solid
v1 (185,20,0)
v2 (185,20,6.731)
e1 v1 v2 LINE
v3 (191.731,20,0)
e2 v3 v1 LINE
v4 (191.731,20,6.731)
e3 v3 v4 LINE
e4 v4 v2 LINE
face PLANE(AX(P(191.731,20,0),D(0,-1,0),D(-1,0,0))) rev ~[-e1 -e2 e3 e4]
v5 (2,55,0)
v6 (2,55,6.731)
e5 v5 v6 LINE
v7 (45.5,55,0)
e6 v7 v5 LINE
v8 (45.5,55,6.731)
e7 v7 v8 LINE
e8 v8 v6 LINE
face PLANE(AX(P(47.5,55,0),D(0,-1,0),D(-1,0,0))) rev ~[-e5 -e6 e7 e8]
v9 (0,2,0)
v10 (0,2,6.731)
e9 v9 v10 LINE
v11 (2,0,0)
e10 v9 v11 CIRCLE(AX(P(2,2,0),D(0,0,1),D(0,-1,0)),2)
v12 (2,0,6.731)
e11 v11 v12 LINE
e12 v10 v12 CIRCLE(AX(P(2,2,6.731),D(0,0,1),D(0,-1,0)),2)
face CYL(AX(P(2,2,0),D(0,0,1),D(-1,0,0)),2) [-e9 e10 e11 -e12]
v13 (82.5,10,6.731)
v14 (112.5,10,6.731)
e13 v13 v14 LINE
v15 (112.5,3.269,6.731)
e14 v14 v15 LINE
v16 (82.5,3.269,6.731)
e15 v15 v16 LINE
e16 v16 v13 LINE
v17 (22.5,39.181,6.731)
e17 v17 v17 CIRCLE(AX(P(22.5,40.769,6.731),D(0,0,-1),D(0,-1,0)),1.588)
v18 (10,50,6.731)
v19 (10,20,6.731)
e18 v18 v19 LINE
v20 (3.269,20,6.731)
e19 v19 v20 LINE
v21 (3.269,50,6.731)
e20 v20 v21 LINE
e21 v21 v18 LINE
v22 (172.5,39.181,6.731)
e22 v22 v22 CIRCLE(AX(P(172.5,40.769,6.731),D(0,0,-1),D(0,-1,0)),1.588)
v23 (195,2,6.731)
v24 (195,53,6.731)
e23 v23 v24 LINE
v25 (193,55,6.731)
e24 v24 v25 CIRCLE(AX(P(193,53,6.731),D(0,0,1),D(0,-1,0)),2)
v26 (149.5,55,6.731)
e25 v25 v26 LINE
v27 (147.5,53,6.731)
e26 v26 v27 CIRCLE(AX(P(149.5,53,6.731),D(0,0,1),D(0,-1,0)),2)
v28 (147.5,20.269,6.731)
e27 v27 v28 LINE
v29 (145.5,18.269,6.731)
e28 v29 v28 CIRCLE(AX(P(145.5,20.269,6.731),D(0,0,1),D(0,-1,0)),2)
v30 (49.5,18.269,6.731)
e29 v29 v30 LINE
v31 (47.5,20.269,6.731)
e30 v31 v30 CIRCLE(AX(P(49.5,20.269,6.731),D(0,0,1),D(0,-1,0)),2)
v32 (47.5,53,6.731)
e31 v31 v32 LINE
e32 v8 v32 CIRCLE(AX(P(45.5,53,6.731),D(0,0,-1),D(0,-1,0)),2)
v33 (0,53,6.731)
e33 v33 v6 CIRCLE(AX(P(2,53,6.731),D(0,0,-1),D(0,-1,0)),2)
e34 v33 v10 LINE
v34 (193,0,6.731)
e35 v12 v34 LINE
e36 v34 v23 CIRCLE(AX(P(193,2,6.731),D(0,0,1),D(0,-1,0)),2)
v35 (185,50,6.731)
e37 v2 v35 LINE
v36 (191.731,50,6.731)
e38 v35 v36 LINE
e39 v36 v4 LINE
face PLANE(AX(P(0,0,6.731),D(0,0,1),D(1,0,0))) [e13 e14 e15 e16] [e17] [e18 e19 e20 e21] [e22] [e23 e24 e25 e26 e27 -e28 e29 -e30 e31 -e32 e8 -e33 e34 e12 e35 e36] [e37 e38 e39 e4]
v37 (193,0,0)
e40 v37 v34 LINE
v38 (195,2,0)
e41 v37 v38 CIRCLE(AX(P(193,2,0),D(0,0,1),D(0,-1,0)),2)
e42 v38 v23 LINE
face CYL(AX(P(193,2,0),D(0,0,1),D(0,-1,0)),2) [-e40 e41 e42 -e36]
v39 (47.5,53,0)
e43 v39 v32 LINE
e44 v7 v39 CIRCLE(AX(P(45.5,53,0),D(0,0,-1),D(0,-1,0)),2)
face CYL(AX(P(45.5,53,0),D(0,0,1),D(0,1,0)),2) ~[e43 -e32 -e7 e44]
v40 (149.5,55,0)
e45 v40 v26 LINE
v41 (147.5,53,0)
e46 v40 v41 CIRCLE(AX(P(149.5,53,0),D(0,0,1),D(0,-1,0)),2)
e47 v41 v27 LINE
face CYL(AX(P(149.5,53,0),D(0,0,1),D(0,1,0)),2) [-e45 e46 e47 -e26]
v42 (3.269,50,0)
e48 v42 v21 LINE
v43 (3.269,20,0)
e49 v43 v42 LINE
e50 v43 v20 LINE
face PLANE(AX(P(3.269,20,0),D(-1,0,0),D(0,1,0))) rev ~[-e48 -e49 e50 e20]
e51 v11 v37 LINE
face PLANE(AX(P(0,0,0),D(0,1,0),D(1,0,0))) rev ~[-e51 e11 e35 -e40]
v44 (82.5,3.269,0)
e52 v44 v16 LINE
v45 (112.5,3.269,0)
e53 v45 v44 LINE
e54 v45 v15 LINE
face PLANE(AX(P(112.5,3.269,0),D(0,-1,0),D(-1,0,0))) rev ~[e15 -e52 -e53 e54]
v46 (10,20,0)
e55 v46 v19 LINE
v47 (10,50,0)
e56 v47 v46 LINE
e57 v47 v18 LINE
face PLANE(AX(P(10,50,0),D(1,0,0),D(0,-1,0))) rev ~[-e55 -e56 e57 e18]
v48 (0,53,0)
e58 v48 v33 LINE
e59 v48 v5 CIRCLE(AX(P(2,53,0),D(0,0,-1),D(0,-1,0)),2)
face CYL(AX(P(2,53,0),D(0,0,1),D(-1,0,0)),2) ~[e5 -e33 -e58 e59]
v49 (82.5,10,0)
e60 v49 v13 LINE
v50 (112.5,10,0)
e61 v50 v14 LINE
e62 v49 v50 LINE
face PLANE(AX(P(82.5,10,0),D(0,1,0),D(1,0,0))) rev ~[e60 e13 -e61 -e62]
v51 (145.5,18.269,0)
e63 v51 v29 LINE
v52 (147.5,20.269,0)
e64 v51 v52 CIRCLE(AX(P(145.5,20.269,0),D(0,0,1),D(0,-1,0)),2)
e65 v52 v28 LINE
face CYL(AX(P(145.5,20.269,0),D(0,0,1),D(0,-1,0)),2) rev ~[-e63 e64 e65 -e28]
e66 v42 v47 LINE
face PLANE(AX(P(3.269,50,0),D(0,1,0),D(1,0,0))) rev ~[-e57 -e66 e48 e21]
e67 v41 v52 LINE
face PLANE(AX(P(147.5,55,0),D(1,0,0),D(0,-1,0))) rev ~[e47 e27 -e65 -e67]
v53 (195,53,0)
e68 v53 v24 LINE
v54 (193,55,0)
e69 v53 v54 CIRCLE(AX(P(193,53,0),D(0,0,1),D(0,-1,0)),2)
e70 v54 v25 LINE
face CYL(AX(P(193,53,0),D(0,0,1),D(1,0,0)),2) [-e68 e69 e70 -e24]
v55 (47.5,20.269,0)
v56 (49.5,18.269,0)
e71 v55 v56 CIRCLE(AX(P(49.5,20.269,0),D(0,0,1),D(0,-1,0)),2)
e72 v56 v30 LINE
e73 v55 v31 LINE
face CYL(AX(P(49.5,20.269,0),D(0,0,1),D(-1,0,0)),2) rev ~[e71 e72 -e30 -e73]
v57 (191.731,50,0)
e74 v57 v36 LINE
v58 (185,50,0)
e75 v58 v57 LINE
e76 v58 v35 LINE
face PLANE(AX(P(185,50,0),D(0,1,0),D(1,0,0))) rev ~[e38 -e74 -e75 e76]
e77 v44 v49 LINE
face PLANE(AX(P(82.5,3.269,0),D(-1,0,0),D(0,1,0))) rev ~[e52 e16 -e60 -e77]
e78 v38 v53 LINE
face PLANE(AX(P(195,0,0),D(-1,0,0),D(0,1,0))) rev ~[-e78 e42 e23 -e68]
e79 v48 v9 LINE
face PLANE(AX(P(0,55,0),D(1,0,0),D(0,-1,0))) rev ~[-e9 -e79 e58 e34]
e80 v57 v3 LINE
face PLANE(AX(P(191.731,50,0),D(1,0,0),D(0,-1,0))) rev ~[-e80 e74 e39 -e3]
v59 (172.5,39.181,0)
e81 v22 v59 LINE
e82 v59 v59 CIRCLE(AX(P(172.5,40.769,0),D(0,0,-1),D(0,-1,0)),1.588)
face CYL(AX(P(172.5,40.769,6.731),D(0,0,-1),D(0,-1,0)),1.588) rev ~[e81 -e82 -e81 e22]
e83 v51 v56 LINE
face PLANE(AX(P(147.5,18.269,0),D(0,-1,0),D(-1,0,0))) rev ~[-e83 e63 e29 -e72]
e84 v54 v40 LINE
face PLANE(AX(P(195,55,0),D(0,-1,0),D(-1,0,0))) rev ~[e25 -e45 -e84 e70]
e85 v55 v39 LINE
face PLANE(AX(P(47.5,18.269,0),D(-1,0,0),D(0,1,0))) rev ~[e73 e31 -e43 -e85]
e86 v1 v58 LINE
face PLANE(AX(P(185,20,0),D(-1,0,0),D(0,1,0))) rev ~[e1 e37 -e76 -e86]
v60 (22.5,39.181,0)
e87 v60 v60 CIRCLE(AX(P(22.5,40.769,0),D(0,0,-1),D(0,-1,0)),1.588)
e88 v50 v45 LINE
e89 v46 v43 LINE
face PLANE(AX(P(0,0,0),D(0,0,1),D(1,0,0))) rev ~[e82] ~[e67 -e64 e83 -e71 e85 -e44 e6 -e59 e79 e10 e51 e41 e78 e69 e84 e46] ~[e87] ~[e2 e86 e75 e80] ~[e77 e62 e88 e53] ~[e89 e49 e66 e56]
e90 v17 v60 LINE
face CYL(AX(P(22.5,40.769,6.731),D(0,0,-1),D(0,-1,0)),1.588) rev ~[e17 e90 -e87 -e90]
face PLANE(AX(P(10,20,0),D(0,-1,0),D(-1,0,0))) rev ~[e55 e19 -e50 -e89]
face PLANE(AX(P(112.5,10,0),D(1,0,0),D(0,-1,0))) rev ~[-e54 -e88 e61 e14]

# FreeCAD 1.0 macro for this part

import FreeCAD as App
import Part
import Sketcher

V = App.Vector
Q = App.Units.Quantity


def edges_at(feature, points):
    """Names of the edges that pass closest to the given points."""
    edges = feature.Shape.Edges
    near = lambda p: min(range(len(edges)), key=lambda i: edges[i].distToShape(Part.Vertex(*p))[0])
    return sorted({f"Edge{near(p) + 1}" for p in points})

doc = App.newDocument("Part")
body = doc.addObject("PartDesign::Body", "Body")

# Sketch on XY plane
sketch1 = doc.addObject("Sketcher::SketchObject", "Sketch")
body.addObject(sketch1)
sketch1.AttachmentSupport = (doc.XY_Plane, [""])
sketch1.MapMode = "FlatFace"
sketch1.addGeometry([
    Part.LineSegment(V(0, 55, 0), V(0, 0, 0)),  # 0
    Part.LineSegment(V(0, 0, 0), V(195, 0, 0)),  # 1
    Part.LineSegment(V(195, 0, 0), V(195, 55, 0)),  # 2
    Part.LineSegment(V(195, 55, 0), V(148, 55, 0)),  # 3
    Part.LineSegment(V(148, 55, 0), V(148, 18, 0)),  # 4
    Part.LineSegment(V(148, 18, 0), V(48, 18, 0)),  # 5
    Part.LineSegment(V(48, 18, 0), V(48, 55, 0)),  # 6
    Part.LineSegment(V(48, 55, 0), V(0, 55, 0)),  # 7
    Part.LineSegment(V(82, 3, 0), V(82, 10, 0)),  # 8
    Part.LineSegment(V(82, 10, 0), V(112, 10, 0)),  # 9
    Part.LineSegment(V(112, 10, 0), V(112, 3, 0)),  # 10
    Part.LineSegment(V(112, 3, 0), V(82, 3, 0)),  # 11
    Part.LineSegment(V(3, 20, 0), V(3, 50, 0)),  # 12
    Part.LineSegment(V(3, 50, 0), V(10, 50, 0)),  # 13
    Part.LineSegment(V(10, 50, 0), V(10, 20, 0)),  # 14
    Part.LineSegment(V(10, 20, 0), V(3, 20, 0)),  # 15
    Part.LineSegment(V(185, 20, 0), V(185, 50, 0)),  # 16
    Part.LineSegment(V(185, 50, 0), V(192, 50, 0)),  # 17
    Part.LineSegment(V(192, 50, 0), V(192, 20, 0)),  # 18
    Part.LineSegment(V(192, 20, 0), V(185, 20, 0)),  # 19
], False)
sketch1.addConstraint([
    Sketcher.Constraint("Coincident", 0, 2, 1, 1),
    Sketcher.Constraint("Coincident", 1, 2, 2, 1),
    Sketcher.Constraint("Coincident", 2, 2, 3, 1),
    Sketcher.Constraint("Coincident", 3, 2, 4, 1),
    Sketcher.Constraint("Coincident", 4, 2, 5, 1),
    Sketcher.Constraint("Coincident", 5, 2, 6, 1),
    Sketcher.Constraint("Coincident", 6, 2, 7, 1),
    Sketcher.Constraint("Coincident", 7, 2, 0, 1),
    Sketcher.Constraint("Coincident", 8, 2, 9, 1),
    Sketcher.Constraint("Coincident", 9, 2, 10, 1),
    Sketcher.Constraint("Coincident", 10, 2, 11, 1),
    Sketcher.Constraint("Coincident", 11, 2, 8, 1),
    Sketcher.Constraint("Coincident", 12, 2, 13, 1),
    Sketcher.Constraint("Coincident", 13, 2, 14, 1),
    Sketcher.Constraint("Coincident", 14, 2, 15, 1),
    Sketcher.Constraint("Coincident", 15, 2, 12, 1),
    Sketcher.Constraint("Coincident", 16, 2, 17, 1),
    Sketcher.Constraint("Coincident", 17, 2, 18, 1),
    Sketcher.Constraint("Coincident", 18, 2, 19, 1),
    Sketcher.Constraint("Coincident", 19, 2, 16, 1),
    Sketcher.Constraint("Vertical", 0),
    Sketcher.Constraint("Horizontal", 1),
    Sketcher.Constraint("Vertical", 2),
    Sketcher.Constraint("Horizontal", 3),
    Sketcher.Constraint("Vertical", 4),
    Sketcher.Constraint("Horizontal", 5),
    Sketcher.Constraint("Vertical", 6),
    Sketcher.Constraint("Horizontal", 7),
    Sketcher.Constraint("Vertical", 8),
    Sketcher.Constraint("Horizontal", 9),
    Sketcher.Constraint("Vertical", 10),
    Sketcher.Constraint("Horizontal", 11),
    Sketcher.Constraint("Vertical", 12),
    Sketcher.Constraint("Horizontal", 13),
    Sketcher.Constraint("Vertical", 14),
    Sketcher.Constraint("Horizontal", 15),
    Sketcher.Constraint("Vertical", 16),
    Sketcher.Constraint("Horizontal", 17),
    Sketcher.Constraint("Vertical", 18),
    Sketcher.Constraint("Horizontal", 19),
    Sketcher.Constraint("Coincident", 0, 2, -1, 1),
    Sketcher.Constraint("Horizontal", 3, 2, 6, 2),
    Sketcher.Constraint("Horizontal", 13, 2, 16, 2),
    Sketcher.Constraint("Horizontal", 15, 2, 18, 2),
    Sketcher.Constraint("Equal", 3, 7),
    Sketcher.Constraint("Equal", 15, 17),
    Sketcher.Constraint("Equal", 19, 8),
    Sketcher.Constraint("Equal", 11, 12),
    Sketcher.Constraint("DistanceX", 1, 1, 1, 2, Q("195 mm")),
    Sketcher.Constraint("DistanceX", 5, 2, 5, 1, Q("100 mm")),
    Sketcher.Constraint("DistanceX", 9, 1, 9, 2, Q("30 mm")),
    Sketcher.Constraint("DistanceY", 0, 2, 0, 1, Q("55 mm")),
    Sketcher.Constraint("DistanceY", -1, 1, 8, 2, Q("10 mm")),
    Sketcher.Constraint("DistanceX", -1, 1, 13, 2, Q("10 mm")),
    Sketcher.Constraint("DistanceX", 16, 2, 2, 2, Q("10 mm")),
    Sketcher.Constraint("DistanceX", 9, 2, 16, 2, Q("72.5 mm")),
    Sketcher.Constraint("DistanceX", 13, 1, 13, 2, Q("6.731 mm")),
    Sketcher.Constraint("DistanceY", 4, 2, 4, 1, Q("36.731 mm")),
    Sketcher.Constraint("DistanceY", -1, 1, 12, 2, Q("50 mm")),
])
pad1 = doc.addObject("PartDesign::Pad", "Pad")
body.addObject(pad1)
pad1.Profile = sketch1
pad1.Length = 6.731

# Sketch on XY plane
sketch2 = doc.addObject("Sketcher::SketchObject", "Sketch001")
body.addObject(sketch2)
sketch2.AttachmentSupport = (doc.XY_Plane, [""])
sketch2.MapMode = "FlatFace"
sketch2.AttachmentOffset = App.Placement(V(0, 0, 6.731), App.Rotation())
sketch2.addGeometry([
    Part.Circle(V(22.5, 40.8, 0), V(0, 0, 1), 1.6),
    Part.Circle(V(172.5, 40.8, 0), V(0, 0, 1), 1.6),
], False)
sketch2.addConstraint([
    Sketcher.Constraint("Equal", 0, 1),
    Sketcher.Constraint("Horizontal", 0, 3, 1, 3),
    Sketcher.Constraint("Diameter", 0, Q("3.176 mm")),
    Sketcher.Constraint("DistanceX", 0, 3, 1, 3, Q("150 mm")),
    Sketcher.Constraint("DistanceX", -1, 1, 0, 3, Q("22.5 mm")),
    Sketcher.Constraint("DistanceY", -1, 1, 0, 3, Q("40.769 mm")),
])
doc.recompute()
hole = doc.addObject("PartDesign::Hole", "Hole")
body.addObject(hole)
hole.Profile = sketch2
hole.ThreadType = "None"
hole.Diameter = 3.176
hole.DepthType = "ThroughAll"
doc.recompute()

fillet = doc.addObject("PartDesign::Fillet", "Fillet")
body.addObject(fillet)
fillet.Base = (hole, edges_at(hole, [
    (195, 55, 3.365),
    (0, 55, 3.365),
    (0, 0, 3.365),
    (195, 0, 3.365),
    (47.5, 18.269, 3.365),
    (47.5, 55, 3.365),
    (147.5, 55, 3.365),
    (147.5, 18.269, 3.365),
]))
fillet.Radius = 2

doc.recompute()
